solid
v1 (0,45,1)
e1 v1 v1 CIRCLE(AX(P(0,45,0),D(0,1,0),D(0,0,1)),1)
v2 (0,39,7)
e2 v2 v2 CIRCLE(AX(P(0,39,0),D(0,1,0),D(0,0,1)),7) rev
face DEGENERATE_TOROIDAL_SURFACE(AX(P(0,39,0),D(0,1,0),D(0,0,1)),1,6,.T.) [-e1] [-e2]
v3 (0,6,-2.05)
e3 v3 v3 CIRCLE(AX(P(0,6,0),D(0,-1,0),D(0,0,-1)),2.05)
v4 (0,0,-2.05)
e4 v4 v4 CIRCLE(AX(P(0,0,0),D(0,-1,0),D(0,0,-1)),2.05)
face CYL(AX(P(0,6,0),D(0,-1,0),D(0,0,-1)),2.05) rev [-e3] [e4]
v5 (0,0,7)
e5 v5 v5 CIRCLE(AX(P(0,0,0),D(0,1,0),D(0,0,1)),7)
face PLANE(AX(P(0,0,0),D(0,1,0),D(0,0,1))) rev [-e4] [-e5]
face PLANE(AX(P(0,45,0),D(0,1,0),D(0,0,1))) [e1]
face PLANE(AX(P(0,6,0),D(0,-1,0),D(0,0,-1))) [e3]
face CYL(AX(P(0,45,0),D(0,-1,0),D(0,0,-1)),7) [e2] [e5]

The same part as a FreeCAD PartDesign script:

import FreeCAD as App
import Part
import Sketcher

V = App.Vector


def edges_at(feature, points):
    """Names of the edges that pass closest to the given points."""
    edges = feature.Shape.Edges
    near = lambda p: min(range(len(edges)), key=lambda i: edges[i].distToShape(Part.Vertex(*p))[0])
    return sorted({f"Edge{near(p) + 1}" for p in points})

doc = App.newDocument("Part")
body = doc.addObject("PartDesign::Body", "Body")

sketch1 = body.newObject("Sketcher::SketchObject", "Sketch")
sketch1.AttachmentSupport = (doc.getObject("XZ_Plane"), [""])
sketch1.MapMode = "FlatFace"
sketch1.addGeometry(Part.Circle(V(0, 0, 0), V(0, 0, 1), 7), False)
sketch1.addConstraint([
    Sketcher.Constraint("Coincident", 0, 3, -1, 1),
    Sketcher.Constraint("Diameter", 0, 14.0),
])
pad1 = body.newObject("PartDesign::Pad", "Pad")
pad1.Profile = sketch1
pad1.Length = 45
pad1.Reversed = True
doc.recompute()

fillet = body.newObject("PartDesign::Fillet", "Fillet")
fillet.Base = (pad1, edges_at(pad1, [(-7, 45, 0)]))
fillet.Radius = 6

sketch2 = body.newObject("Sketcher::SketchObject", "Sketch001")
sketch2.AttachmentSupport = (doc.getObject("XZ_Plane"), [""])
sketch2.MapMode = "FlatFace"
sketch2.addGeometry(Part.Circle(V(0, 0, 0), V(0, 0, 1), 2), False)
sketch2.addConstraint([
    Sketcher.Constraint("Coincident", 0, 3, -1, 1),
    Sketcher.Constraint("Diameter", 0, 4.1),
])
pocket1 = body.newObject("PartDesign::Pocket", "Pocket")
pocket1.Profile = sketch2
pocket1.Length = 6

doc.recompute()
